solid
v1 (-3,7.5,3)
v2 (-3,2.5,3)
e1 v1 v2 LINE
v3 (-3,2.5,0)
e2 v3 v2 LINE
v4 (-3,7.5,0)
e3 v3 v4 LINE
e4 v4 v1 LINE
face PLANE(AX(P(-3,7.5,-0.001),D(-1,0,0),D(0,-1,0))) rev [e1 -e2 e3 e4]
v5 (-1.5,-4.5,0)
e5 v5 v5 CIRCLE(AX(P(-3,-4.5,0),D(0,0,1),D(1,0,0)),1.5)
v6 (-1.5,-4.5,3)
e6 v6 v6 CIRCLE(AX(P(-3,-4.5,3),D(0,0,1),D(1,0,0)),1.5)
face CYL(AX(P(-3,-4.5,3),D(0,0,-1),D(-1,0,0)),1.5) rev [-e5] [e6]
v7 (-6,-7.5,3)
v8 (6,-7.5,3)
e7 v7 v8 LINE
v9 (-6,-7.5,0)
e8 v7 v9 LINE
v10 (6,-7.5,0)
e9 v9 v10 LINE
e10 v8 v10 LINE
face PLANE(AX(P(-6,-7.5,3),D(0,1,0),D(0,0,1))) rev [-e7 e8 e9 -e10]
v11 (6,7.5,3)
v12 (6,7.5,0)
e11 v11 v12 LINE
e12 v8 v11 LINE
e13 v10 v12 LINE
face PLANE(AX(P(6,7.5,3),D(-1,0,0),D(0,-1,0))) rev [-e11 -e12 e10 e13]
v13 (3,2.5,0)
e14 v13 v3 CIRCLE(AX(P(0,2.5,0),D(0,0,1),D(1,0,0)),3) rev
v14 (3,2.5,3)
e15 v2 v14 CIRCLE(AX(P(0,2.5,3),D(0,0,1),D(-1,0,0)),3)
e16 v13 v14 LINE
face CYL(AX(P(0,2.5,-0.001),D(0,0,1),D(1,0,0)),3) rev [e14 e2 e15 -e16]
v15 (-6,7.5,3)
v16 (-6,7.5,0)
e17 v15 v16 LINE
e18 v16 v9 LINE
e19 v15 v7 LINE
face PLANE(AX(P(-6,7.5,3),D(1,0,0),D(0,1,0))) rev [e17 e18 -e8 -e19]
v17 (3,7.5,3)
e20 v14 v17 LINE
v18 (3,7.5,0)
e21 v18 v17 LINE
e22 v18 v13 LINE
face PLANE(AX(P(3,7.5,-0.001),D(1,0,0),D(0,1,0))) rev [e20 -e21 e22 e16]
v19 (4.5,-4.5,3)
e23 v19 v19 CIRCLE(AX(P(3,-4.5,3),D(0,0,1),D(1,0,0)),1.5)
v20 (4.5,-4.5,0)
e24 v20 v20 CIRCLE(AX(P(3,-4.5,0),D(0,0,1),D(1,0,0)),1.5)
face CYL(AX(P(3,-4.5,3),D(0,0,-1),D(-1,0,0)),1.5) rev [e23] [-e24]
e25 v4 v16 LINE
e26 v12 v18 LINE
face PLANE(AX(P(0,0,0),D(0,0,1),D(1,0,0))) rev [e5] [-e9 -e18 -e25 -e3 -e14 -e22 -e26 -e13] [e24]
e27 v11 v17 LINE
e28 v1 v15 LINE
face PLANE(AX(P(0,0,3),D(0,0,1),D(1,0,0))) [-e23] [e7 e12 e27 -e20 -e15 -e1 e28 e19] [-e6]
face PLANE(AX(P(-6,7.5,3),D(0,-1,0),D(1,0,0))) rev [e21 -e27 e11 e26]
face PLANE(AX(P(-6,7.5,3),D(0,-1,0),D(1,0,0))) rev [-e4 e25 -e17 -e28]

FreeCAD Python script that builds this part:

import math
import FreeCAD as App
import Part
import Sketcher
from FreeCAD import Vector
Q = App.Units.Quantity

doc = App.newDocument("Part")
body = doc.addObject("PartDesign::Body", "Body")

# Sketch on XY plane
sketch1 = body.newObject("Sketcher::SketchObject", "Sketch")
sketch1.AttachmentSupport = (doc.getObject("XY_Plane"), [""])
sketch1.MapMode = "FlatFace"
sketch1.addGeometry([
    Part.LineSegment(Vector(-6, 7.5, 0), Vector(-6, -7.5, 0)),  # 0
    Part.LineSegment(Vector(-6, -7.5, 0), Vector(6, -7.5, 0)),  # 1
    Part.LineSegment(Vector(6, -7.5, 0), Vector(6, 7.5, 0)),  # 2
    Part.LineSegment(Vector(6, 7.5, 0), Vector(-6, 7.5, 0)),  # 3
    Part.Circle(Vector(-3, -4.5, 0), Vector(0, 0, 1), 1.5),  # 4
    Part.Circle(Vector(3, -4.5, 0), Vector(0, 0, 1), 1.5),  # 5
], False)
sketch1.addConstraint([
    Sketcher.Constraint("Coincident", 0, 2, 1, 1),
    Sketcher.Constraint("Coincident", 1, 2, 2, 1),
    Sketcher.Constraint("Coincident", 2, 2, 3, 1),
    Sketcher.Constraint("Coincident", 3, 2, 0, 1),
    Sketcher.Constraint("Vertical", 0),
    Sketcher.Constraint("Horizontal", 1),
    Sketcher.Constraint("Vertical", 2),
    Sketcher.Constraint("Horizontal", 3),
    Sketcher.Constraint("Equal", 4, 5),
    Sketcher.Constraint("Symmetric", 0, 2, 2, 2, -1, 1),
    Sketcher.Constraint("Symmetric", 4, 3, 5, 3, -2),
    Sketcher.Constraint("Diameter", 4, Q("3 mm")),
    Sketcher.Constraint("DistanceX", 1, 1, 1, 2, Q("12 mm")),
    Sketcher.Constraint("DistanceY", 0, 2, 0, 1, Q("15 mm")),
    Sketcher.Constraint("DistanceX", 4, 3, -1, 1, Q("3 mm")),
    Sketcher.Constraint("DistanceY", 0, 2, 4, 3, Q("3 mm")),
])
pad1 = body.newObject("PartDesign::Pad", "Pad")
pad1.Profile = sketch1
pad1.Length = 3

# Sketch on XY plane
sketch2 = body.newObject("Sketcher::SketchObject", "Sketch001")
sketch2.AttachmentSupport = (doc.getObject("XY_Plane"), [""])
sketch2.MapMode = "FlatFace"
sketch2.AttachmentOffset = App.Placement(Vector(0, 0, 3), App.Rotation())
sketch2.addGeometry([
    Part.LineSegment(Vector(3, 7.5, 0), Vector(-3, 7.5, 0)),
    Part.LineSegment(Vector(-3, 7.5, 0), Vector(-3, 2.5, 0)),
    Part.ArcOfCircle(Part.Circle(Vector(0, 2.5, 0), Vector(0, 0, 1), 3), math.radians(180), math.radians(360)),
    Part.LineSegment(Vector(3, 2.5, 0), Vector(3, 7.5, 0)),
], False)
sketch2.addConstraint([
    Sketcher.Constraint("Coincident", 0, 2, 1, 1),
    Sketcher.Constraint("Tangent", 1, 2, 2, 1),
    Sketcher.Constraint("Tangent", 2, 2, 3, 1),
    Sketcher.Constraint("Coincident", 3, 2, 0, 1),
    Sketcher.Constraint("Horizontal", 0),
    Sketcher.Constraint("Vertical", 1),
    Sketcher.Constraint("Vertical", 3),
    Sketcher.Constraint("PointOnObject", 2, 3, -2),
    Sketcher.Constraint("Radius", 2, Q("3 mm")),
    Sketcher.Constraint("DistanceY", 1, 2, 1, 1, Q("5 mm")),
    Sketcher.Constraint("DistanceY", -1, 1, 2, 3, Q("2.5 mm")),
])
pocket1 = body.newObject("PartDesign::Pocket", "Pocket")
pocket1.Profile = sketch2
pocket1.Type = "UpToFirst"

doc.recompute()
